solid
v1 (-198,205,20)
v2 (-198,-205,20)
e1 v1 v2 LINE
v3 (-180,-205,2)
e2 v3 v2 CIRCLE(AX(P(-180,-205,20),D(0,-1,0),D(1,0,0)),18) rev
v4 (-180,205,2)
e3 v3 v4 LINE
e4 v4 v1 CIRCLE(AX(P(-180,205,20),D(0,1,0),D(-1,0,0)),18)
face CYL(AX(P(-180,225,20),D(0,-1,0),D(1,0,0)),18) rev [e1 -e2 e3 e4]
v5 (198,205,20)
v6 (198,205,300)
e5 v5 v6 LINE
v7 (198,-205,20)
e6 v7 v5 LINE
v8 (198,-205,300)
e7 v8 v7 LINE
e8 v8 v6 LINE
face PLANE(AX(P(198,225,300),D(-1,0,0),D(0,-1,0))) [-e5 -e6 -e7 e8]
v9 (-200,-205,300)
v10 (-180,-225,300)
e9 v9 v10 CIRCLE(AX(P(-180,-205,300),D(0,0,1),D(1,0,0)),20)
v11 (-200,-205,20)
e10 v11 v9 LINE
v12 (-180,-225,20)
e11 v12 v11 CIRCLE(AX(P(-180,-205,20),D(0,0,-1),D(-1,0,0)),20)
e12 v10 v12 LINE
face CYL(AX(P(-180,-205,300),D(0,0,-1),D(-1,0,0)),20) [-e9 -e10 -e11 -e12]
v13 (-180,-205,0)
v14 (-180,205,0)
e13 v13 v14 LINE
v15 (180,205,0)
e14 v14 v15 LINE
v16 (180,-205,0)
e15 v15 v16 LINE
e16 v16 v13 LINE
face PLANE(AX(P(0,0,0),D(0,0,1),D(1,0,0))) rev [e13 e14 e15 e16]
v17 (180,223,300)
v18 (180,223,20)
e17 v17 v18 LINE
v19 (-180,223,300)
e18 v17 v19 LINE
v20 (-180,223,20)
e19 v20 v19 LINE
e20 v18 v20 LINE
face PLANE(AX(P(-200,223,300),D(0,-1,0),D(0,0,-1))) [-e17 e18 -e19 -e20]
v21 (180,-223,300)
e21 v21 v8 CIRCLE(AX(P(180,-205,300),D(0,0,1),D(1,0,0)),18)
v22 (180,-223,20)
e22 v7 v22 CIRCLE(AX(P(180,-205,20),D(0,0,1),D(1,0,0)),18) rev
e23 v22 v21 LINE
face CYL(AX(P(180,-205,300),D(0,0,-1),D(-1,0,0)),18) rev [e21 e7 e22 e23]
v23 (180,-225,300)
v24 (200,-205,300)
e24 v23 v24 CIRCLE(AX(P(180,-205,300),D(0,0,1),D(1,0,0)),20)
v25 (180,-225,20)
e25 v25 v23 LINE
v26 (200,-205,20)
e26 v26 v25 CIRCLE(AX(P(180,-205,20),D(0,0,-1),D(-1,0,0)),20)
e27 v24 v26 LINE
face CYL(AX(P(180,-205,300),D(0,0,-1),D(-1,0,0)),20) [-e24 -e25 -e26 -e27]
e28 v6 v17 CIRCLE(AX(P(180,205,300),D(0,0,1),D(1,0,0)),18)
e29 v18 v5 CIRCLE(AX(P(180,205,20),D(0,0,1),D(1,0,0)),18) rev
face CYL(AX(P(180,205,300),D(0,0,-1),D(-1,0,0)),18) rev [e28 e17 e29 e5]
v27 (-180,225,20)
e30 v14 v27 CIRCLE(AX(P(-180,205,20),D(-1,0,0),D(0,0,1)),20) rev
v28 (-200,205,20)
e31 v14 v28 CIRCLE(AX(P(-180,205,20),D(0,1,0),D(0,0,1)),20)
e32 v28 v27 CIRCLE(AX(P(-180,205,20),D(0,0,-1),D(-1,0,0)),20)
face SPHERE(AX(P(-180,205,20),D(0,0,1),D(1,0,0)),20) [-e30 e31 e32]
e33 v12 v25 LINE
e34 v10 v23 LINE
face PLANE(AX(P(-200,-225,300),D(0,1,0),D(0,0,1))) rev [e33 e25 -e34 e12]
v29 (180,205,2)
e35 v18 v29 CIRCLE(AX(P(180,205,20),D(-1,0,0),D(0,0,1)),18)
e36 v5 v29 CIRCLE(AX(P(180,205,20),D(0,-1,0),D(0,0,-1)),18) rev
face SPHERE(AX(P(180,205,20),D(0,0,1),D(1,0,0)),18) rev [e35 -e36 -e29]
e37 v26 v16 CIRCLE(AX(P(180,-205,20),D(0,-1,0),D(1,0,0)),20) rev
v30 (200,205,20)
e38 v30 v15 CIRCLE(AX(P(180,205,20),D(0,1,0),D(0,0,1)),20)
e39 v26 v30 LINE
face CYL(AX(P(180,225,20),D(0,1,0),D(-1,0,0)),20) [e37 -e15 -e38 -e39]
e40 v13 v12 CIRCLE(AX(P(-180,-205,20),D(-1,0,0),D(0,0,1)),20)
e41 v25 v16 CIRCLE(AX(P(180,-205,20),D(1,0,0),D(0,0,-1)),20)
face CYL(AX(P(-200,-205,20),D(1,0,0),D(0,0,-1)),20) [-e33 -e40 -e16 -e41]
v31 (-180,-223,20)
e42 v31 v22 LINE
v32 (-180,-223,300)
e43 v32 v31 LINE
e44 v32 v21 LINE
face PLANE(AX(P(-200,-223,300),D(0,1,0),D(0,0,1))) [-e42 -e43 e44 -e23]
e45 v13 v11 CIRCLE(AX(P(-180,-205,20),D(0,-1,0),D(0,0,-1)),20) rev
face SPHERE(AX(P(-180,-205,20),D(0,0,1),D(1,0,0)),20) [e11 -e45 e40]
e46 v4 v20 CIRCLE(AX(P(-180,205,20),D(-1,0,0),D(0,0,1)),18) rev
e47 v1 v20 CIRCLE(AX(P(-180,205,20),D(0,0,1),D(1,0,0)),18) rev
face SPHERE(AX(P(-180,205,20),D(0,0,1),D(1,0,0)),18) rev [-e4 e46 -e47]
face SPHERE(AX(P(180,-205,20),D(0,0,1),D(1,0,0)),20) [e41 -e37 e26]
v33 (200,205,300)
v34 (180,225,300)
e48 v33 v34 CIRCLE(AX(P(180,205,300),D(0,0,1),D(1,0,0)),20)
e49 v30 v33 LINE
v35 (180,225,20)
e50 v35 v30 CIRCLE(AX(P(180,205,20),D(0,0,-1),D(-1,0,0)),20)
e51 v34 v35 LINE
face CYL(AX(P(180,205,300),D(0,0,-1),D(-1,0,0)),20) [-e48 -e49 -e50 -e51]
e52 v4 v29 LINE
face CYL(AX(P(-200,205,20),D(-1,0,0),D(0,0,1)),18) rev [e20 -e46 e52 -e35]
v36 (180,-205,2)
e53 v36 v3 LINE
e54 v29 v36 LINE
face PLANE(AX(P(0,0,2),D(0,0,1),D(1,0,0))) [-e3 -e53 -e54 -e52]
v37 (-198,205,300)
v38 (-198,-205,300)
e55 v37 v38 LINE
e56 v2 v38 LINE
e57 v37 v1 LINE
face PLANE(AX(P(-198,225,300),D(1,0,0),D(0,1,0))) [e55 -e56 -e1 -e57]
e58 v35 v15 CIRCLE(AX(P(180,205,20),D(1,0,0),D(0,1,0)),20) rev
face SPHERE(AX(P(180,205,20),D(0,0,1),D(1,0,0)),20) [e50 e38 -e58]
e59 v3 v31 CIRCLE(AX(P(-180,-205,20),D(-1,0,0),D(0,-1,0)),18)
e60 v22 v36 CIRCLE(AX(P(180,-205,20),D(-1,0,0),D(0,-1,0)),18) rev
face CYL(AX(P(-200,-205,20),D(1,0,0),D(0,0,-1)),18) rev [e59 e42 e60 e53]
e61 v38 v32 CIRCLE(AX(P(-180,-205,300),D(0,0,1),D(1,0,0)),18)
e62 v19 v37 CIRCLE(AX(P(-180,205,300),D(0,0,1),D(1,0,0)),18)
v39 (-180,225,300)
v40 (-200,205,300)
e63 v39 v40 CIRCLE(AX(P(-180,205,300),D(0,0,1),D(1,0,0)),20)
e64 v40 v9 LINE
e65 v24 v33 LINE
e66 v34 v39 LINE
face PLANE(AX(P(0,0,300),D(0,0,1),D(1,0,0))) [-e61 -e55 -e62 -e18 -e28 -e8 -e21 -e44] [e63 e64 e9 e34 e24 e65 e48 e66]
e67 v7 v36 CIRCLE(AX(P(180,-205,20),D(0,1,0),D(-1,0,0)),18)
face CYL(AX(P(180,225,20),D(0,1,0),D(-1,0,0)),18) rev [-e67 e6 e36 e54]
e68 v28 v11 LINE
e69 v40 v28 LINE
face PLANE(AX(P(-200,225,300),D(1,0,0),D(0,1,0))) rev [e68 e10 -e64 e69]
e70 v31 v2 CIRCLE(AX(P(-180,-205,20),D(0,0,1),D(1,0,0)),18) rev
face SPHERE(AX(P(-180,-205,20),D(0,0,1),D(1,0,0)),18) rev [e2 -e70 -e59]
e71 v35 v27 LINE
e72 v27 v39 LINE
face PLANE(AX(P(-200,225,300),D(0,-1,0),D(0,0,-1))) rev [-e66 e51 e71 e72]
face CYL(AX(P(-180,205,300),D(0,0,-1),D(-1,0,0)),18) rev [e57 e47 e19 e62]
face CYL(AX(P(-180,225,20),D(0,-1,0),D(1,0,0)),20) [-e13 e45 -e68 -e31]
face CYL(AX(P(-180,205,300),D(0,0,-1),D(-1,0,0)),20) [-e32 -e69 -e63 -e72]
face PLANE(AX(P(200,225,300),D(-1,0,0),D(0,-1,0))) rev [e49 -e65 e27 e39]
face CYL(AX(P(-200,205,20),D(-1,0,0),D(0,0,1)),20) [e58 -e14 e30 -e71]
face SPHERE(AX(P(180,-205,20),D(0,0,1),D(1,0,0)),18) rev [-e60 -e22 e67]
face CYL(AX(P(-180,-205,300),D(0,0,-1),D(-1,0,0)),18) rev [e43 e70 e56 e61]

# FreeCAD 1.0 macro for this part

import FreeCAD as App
import Part
import Sketcher

V = App.Vector
Q = App.Units.Quantity


def edges_at(feature, points):
    """Names of the edges that pass closest to the given points."""
    edges = feature.Shape.Edges
    near = lambda p: min(range(len(edges)), key=lambda i: edges[i].distToShape(Part.Vertex(*p))[0])
    return sorted({f"Edge{near(p) + 1}" for p in points})


def faces_at(feature, points):
    """Names of the faces that lie closest to the given points."""
    faces = feature.Shape.Faces
    near = lambda p: min(range(len(faces)), key=lambda i: faces[i].distToShape(Part.Vertex(*p))[0])
    return sorted({f"Face{near(p) + 1}" for p in points})


def add_polygon(sketch, points):
    """Adds a closed chain of lines whose ends are joined by coincident constraints."""
    first, n = sketch.GeometryCount, len(points)
    for a, b in zip(points, points[1:] + points[:1]):
        sketch.addGeometry(Part.LineSegment(App.Vector(*a, 0), App.Vector(*b, 0)), False)
    for i in range(n):
        sketch.addConstraint(Sketcher.Constraint("Coincident", first + i, 2, first + (i + 1) % n, 1))

doc = App.newDocument("Part")
body = doc.addObject("PartDesign::Body", "Body")

sketch1 = body.newObject("Sketcher::SketchObject", "Sketch")
sketch1.AttachmentSupport = (doc.getObject("XY_Plane"), [""])
sketch1.MapMode = "FlatFace"
add_polygon(sketch1, [(-200, 225), (-200, -225), (200, -225), (200, 225)])
sketch1.addConstraint(Sketcher.Constraint("Vertical", 0))
sketch1.addConstraint(Sketcher.Constraint("Horizontal", 1))
sketch1.addConstraint(Sketcher.Constraint("Vertical", 2))
sketch1.addConstraint(Sketcher.Constraint("Horizontal", 3))
sketch1.addConstraint(Sketcher.Constraint("Symmetric", 0, 2, 2, 2, -1, 1))
sketch1.addConstraint(Sketcher.Constraint("DistanceX", 1, 1, 1, 2, Q("400 mm")))
sketch1.addConstraint(Sketcher.Constraint("DistanceY", 0, 2, 0, 1, Q("450 mm")))
pad1 = body.newObject("PartDesign::Pad", "Pad")
pad1.Profile = sketch1
pad1.Length = 300
doc.recompute()

fillet = body.newObject("PartDesign::Fillet", "Fillet")
fillet.Base = (pad1, edges_at(pad1, [
    (0, -225, 0),
    (-200, 0, 0),
    (0, 225, 0),
    (200, 0, 0),
    (200, -225, 150),
    (-200, -225, 150),
    (-200, 225, 150),
    (200, 225, 150),
]))
fillet.Radius = 20
doc.recompute()

thickness = body.newObject("PartDesign::Thickness", "Thickness")
thickness.Base = (fillet, faces_at(fillet, [(0, 0, 300)]))
thickness.Value = 2
thickness.Reversed = True
thickness.Join = "Intersection"

doc.recompute()
